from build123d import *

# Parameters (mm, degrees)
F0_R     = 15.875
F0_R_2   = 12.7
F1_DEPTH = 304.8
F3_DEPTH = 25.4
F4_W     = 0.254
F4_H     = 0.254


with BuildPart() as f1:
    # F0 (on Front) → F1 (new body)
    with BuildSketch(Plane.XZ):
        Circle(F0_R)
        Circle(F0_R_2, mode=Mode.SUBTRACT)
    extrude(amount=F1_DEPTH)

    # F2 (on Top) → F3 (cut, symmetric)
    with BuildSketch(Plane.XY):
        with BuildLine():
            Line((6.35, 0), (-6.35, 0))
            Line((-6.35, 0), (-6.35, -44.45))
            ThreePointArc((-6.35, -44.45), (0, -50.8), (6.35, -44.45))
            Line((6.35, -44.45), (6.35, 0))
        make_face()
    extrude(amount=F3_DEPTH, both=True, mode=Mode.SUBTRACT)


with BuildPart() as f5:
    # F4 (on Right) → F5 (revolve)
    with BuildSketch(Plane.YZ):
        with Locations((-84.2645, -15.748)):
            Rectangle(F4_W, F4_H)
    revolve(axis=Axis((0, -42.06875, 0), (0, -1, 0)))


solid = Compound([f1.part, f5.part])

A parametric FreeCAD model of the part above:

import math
import FreeCAD as App
import Part
import Sketcher
Q = App.Units.Quantity


def add_polygon(sketch, points):
    """Adds a closed chain of lines whose ends are joined by coincident constraints."""
    first, n = sketch.GeometryCount, len(points)
    for a, b in zip(points, points[1:] + points[:1]):
        sketch.addGeometry(Part.LineSegment(App.Vector(*a, 0), App.Vector(*b, 0)), False)
    for i in range(n):
        sketch.addConstraint(Sketcher.Constraint("Coincident", first + i, 2, first + (i + 1) % n, 1))

doc = App.newDocument("Part")
body = doc.addObject("PartDesign::Body", "Body")

# Sketch on XZ plane
sketch1 = body.newObject("Sketcher::SketchObject", "Sketch")
sketch1.AttachmentSupport = (doc.getObject("XZ_Plane"), [""])
sketch1.MapMode = "FlatFace"
sketch1.addGeometry([
    Part.Circle(App.Vector(0, 0, 0), App.Vector(0, 0, 1), 15.875),
    Part.Circle(App.Vector(0, 0, 0), App.Vector(0, 0, 1), 12.7),
], False)
sketch1.addConstraint([
    Sketcher.Constraint("Coincident", 0, 3, -1, 1),
    Sketcher.Constraint("Coincident", 1, 3, -1, 1),
    Sketcher.Constraint("Diameter", 1, Q("1 in")),
    Sketcher.Constraint("Diameter", 0, Q("1.25 in")),
])
pad1 = body.newObject("PartDesign::Pad", "Pad")
pad1.Profile = sketch1
pad1.Length = Q("12 in")

# Sketch on XY plane
sketch2 = body.newObject("Sketcher::SketchObject", "Sketch001")
sketch2.AttachmentSupport = (doc.getObject("XY_Plane"), [""])
sketch2.MapMode = "FlatFace"
sketch2.addGeometry([
    Part.LineSegment(App.Vector(6.35, 0, 0), App.Vector(-6.35, 0, 0)),
    Part.LineSegment(App.Vector(-6.35, 0, 0), App.Vector(-6.35, -44.45, 0)),
    Part.ArcOfCircle(Part.Circle(App.Vector(0, -44.45, 0), App.Vector(0, 0, 1), 6.35), math.radians(180), math.radians(360)),
    Part.LineSegment(App.Vector(6.35, -44.45, 0), App.Vector(6.35, 0, 0)),
], False)
sketch2.addConstraint([
    Sketcher.Constraint("Coincident", 0, 2, 1, 1),
    Sketcher.Constraint("Tangent", 1, 2, 2, 1),
    Sketcher.Constraint("Tangent", 2, 2, 3, 1),
    Sketcher.Constraint("Coincident", 3, 2, 0, 1),
    Sketcher.Constraint("Horizontal", 0),
    Sketcher.Constraint("Vertical", 1),
    Sketcher.Constraint("Vertical", 3),
    Sketcher.Constraint("Symmetric", 0, 2, 3, 2, -1, 1),
    Sketcher.Constraint("Radius", 2, Q("0.25 in")),
    Sketcher.Constraint("DistanceY", 1, 2, 1, 1, Q("1.75 in")),
])
pocket1 = body.newObject("PartDesign::Pocket", "Pocket")
pocket1.Profile = sketch2
pocket1.Length = Q("2 in")
pocket1.Midplane = True
body2 = doc.addObject("PartDesign::Body", "Body001")

# Sketch on YZ plane
sketch3 = body2.newObject("Sketcher::SketchObject", "Sketch002")
sketch3.AttachmentSupport = (doc.getObject("YZ_Plane001"), [""])
sketch3.MapMode = "FlatFace"
add_polygon(sketch3, [(-84.3915, -15.621), (-84.3915, -15.875), (-84.1375, -15.875), (-84.1375, -15.621)])  # lines 0-3
sketch3.addConstraint([
    Sketcher.Constraint("Vertical", 0),
    Sketcher.Constraint("Horizontal", 1),
    Sketcher.Constraint("Vertical", 2),
    Sketcher.Constraint("Horizontal", 3),
    Sketcher.Constraint("Equal", 3, 0),
    Sketcher.Constraint("DistanceX", 1, 1, 1, 2, Q("0.01 in")),
    Sketcher.Constraint("DistanceY", 0, 2, -1, 1, Q("0.625 in")),
    Sketcher.Constraint("DistanceX", 1, 2, -1, 1, Q("3.3125 in")),
])
revolution = body2.newObject("PartDesign::Revolution", "Revolution")
revolution.Profile = sketch3
revolution.ReferenceAxis = (sketch3, ["H_Axis"])
revolution.Angle = 360

doc.recompute()
